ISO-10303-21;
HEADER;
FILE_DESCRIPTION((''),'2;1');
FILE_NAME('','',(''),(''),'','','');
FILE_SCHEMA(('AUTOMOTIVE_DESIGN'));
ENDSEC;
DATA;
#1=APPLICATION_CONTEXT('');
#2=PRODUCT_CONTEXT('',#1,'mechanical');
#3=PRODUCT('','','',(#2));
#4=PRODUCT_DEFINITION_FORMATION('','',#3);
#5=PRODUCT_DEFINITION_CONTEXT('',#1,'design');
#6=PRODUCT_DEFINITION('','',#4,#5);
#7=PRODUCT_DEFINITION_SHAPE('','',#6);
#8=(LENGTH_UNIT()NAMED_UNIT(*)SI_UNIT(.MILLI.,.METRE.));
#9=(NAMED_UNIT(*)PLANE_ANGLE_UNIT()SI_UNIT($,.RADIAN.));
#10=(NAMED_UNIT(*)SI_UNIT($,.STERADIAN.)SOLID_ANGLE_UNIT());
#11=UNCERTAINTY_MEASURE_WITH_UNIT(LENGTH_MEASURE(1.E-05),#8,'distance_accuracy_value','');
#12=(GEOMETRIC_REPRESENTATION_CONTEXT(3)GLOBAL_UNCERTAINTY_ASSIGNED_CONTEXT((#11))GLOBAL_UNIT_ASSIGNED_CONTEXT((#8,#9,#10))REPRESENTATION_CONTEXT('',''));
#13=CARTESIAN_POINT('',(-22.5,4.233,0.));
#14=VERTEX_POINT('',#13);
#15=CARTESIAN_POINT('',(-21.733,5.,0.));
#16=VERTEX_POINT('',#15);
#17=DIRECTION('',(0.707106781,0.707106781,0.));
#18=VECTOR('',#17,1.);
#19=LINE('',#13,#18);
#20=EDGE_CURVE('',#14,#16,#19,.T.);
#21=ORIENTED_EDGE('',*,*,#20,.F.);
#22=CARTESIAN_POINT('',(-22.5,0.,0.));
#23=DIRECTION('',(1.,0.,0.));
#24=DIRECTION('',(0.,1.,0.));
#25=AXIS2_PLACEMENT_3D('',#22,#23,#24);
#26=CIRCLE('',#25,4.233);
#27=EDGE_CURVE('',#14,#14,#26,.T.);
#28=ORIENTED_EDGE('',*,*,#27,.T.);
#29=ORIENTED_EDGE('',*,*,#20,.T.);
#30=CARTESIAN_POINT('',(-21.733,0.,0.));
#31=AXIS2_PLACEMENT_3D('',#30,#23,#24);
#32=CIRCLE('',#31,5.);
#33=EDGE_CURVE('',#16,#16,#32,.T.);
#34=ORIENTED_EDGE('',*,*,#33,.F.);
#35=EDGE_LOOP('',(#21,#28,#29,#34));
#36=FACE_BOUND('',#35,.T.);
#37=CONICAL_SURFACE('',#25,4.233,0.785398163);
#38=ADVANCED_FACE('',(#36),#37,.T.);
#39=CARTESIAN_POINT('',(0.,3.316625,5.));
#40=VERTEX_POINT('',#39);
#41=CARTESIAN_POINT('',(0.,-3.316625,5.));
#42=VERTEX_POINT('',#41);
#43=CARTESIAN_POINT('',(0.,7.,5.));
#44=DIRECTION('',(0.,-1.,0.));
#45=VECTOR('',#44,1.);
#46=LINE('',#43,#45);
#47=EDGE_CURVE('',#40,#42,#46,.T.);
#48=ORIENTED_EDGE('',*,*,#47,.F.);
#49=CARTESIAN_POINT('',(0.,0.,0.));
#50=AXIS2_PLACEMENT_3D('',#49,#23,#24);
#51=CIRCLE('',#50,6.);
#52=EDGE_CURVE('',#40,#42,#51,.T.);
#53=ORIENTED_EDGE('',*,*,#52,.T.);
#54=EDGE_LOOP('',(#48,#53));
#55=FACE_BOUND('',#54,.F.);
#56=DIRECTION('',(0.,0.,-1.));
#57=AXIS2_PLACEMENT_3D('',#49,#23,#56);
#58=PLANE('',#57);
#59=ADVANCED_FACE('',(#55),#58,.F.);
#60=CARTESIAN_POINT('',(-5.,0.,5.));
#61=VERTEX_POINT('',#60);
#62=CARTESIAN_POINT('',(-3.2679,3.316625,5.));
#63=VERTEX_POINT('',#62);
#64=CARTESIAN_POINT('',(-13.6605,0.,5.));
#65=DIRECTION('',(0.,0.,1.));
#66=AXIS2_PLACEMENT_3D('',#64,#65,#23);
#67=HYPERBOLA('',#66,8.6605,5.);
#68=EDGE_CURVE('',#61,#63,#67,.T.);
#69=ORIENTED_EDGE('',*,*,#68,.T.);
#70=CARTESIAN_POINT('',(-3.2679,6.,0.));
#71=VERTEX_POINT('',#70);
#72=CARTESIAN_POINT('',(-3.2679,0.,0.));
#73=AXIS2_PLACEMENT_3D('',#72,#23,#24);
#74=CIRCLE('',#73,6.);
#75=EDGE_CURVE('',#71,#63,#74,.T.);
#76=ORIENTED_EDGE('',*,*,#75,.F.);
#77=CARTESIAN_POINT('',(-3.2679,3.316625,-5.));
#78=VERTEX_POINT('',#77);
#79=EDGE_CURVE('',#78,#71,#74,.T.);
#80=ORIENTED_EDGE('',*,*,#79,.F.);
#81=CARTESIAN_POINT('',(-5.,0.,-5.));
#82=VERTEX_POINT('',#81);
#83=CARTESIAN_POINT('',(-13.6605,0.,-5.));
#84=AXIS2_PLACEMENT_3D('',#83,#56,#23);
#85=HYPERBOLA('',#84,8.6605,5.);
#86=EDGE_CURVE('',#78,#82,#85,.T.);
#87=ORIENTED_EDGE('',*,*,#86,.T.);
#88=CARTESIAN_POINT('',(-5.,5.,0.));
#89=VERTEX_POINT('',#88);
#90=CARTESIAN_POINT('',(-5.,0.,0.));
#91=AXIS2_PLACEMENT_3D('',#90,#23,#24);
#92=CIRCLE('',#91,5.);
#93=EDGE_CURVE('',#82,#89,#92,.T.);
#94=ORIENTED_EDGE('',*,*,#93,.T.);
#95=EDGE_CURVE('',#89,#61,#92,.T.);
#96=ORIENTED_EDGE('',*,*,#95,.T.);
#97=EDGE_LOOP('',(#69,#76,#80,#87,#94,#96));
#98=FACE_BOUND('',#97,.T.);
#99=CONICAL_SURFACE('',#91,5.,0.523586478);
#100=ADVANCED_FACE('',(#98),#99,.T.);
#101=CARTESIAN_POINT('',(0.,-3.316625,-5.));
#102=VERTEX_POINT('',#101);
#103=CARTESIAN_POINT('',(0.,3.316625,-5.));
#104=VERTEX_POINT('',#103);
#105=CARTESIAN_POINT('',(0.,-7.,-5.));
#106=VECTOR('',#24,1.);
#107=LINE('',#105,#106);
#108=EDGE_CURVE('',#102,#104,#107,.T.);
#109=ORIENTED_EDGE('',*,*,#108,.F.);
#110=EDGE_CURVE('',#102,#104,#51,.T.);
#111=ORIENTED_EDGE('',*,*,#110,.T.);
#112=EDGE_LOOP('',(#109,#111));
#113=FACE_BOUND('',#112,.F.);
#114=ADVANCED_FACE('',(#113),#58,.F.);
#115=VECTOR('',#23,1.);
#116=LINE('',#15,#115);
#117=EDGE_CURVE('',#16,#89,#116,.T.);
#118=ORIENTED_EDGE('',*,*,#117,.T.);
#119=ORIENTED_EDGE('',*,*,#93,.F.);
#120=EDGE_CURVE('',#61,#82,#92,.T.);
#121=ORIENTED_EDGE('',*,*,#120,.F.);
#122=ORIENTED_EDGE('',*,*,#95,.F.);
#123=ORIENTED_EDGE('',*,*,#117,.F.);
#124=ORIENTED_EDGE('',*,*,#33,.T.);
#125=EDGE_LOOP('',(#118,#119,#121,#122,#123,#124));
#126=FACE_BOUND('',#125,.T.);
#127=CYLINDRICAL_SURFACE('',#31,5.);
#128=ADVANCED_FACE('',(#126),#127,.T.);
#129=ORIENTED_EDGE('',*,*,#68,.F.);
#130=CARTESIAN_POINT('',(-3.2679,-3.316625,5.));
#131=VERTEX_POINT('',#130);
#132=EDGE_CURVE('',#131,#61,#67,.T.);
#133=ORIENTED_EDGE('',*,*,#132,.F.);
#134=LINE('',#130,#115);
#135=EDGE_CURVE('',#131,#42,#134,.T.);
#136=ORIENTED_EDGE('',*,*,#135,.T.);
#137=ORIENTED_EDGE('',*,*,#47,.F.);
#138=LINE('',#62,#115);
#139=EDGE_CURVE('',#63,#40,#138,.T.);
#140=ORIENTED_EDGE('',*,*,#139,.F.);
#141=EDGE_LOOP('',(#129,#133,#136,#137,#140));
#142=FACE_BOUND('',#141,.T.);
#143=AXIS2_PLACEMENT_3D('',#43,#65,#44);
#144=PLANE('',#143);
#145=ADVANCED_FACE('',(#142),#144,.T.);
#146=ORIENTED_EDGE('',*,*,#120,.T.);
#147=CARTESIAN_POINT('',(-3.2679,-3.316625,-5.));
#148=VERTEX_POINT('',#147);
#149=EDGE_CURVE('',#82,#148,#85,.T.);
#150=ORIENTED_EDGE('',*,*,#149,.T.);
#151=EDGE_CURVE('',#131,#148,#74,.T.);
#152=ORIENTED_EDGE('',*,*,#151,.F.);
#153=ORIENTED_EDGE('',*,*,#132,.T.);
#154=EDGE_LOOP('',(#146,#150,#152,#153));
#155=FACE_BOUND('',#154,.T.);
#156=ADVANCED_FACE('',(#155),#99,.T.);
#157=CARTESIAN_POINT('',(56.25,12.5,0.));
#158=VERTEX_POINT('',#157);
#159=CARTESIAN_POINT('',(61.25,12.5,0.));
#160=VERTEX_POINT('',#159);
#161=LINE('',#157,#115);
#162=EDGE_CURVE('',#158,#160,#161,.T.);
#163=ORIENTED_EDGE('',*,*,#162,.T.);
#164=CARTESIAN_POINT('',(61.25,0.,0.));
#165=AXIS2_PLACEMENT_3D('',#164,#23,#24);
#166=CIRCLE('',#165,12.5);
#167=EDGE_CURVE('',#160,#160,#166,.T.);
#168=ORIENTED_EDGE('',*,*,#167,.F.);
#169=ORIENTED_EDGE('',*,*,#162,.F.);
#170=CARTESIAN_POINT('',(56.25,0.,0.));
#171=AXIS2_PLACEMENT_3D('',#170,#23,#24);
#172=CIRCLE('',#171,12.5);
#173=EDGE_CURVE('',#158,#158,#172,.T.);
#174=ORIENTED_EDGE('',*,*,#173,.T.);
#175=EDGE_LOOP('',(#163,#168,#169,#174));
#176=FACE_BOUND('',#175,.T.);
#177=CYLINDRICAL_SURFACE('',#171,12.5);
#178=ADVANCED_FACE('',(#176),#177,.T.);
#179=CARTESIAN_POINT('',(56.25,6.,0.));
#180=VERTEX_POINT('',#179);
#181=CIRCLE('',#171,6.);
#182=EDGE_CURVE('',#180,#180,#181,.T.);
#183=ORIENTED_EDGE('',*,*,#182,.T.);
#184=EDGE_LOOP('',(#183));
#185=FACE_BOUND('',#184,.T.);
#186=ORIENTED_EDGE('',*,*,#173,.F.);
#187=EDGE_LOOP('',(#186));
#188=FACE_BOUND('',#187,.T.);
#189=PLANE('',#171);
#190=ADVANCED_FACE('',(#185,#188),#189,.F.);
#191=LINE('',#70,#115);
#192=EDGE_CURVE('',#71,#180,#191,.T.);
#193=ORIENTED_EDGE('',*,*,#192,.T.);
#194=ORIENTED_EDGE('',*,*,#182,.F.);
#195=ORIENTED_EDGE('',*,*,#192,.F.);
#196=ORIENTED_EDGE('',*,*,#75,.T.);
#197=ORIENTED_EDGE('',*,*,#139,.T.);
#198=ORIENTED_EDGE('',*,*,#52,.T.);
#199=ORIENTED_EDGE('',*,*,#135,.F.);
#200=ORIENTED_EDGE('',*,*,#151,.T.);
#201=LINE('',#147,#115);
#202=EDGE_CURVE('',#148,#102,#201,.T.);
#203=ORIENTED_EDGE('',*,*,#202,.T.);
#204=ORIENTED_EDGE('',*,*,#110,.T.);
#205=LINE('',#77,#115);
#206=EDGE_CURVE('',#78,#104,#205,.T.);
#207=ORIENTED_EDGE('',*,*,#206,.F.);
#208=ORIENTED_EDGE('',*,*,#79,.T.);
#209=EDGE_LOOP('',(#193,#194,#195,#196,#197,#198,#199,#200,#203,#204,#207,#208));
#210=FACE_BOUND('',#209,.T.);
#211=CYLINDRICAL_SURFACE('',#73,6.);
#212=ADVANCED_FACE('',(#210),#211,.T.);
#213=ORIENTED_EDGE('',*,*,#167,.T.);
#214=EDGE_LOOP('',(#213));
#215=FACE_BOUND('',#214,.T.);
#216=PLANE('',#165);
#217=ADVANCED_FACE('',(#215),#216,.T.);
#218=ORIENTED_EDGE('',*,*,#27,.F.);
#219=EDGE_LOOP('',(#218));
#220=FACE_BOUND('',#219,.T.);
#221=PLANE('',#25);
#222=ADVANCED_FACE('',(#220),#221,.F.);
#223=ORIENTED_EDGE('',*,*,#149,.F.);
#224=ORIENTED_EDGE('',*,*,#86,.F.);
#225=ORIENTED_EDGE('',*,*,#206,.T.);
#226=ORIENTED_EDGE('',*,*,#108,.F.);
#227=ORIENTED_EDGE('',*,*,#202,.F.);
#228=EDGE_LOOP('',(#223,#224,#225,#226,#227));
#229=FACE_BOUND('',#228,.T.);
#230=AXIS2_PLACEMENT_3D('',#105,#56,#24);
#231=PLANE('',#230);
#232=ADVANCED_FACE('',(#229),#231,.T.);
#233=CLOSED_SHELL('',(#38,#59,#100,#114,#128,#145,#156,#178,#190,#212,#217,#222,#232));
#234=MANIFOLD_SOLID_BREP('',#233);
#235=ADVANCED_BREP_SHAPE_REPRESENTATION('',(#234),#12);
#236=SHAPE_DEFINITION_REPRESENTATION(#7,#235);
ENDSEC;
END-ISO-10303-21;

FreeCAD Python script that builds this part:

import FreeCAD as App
import Part
import Sketcher
from FreeCAD import Vector
Q = App.Units.Quantity

doc = App.newDocument("Part")
body = doc.addObject("PartDesign::Body", "Body")

sketch1 = doc.addObject("Sketcher::SketchObject", "Sketch")
body.addObject(sketch1)
sketch1.AttachmentSupport = (doc.XY_Plane, [""])
sketch1.MapMode = "FlatFace"
sketch1.addGeometry([
    Part.LineSegment(Vector(-22.5, 0, 0), Vector(61.2, 0, 0)),
    Part.LineSegment(Vector(61.2, 0, 0), Vector(61.2, 12.5, 0)),
    Part.LineSegment(Vector(61.2, 12.5, 0), Vector(56.2, 12.5, 0)),
    Part.LineSegment(Vector(56.2, 12.5, 0), Vector(56.2, 6, 0)),
    Part.LineSegment(Vector(56.2, 6, 0), Vector(-3.3, 6, 0)),
    Part.LineSegment(Vector(-3.3, 6, 0), Vector(-5, 5, 0)),
    Part.LineSegment(Vector(-5, 5, 0), Vector(-21.7, 5, 0)),
    Part.LineSegment(Vector(-21.7, 5, 0), Vector(-22.5, 4.2, 0)),
    Part.LineSegment(Vector(-22.5, 4.2, 0), Vector(-22.5, 0, 0)),
], False)
sketch1.addConstraint([
    Sketcher.Constraint("Coincident", 0, 2, 1, 1),
    Sketcher.Constraint("Coincident", 1, 2, 2, 1),
    Sketcher.Constraint("Coincident", 2, 2, 3, 1),
    Sketcher.Constraint("Coincident", 3, 2, 4, 1),
    Sketcher.Constraint("Coincident", 4, 2, 5, 1),
    Sketcher.Constraint("Coincident", 5, 2, 6, 1),
    Sketcher.Constraint("Coincident", 6, 2, 7, 1),
    Sketcher.Constraint("Coincident", 7, 2, 8, 1),
    Sketcher.Constraint("Coincident", 8, 2, 0, 1),
    Sketcher.Constraint("Horizontal", 0),
    Sketcher.Constraint("Vertical", 1),
    Sketcher.Constraint("Horizontal", 2),
    Sketcher.Constraint("Vertical", 3),
    Sketcher.Constraint("Horizontal", 4),
    Sketcher.Constraint("Horizontal", 6),
    Sketcher.Constraint("Vertical", 8),
    Sketcher.Constraint("PointOnObject", 0, 2, -1),
    Sketcher.Constraint("DistanceX", 2, 2, 2, 1, 5.0),
    Sketcher.Constraint("Angle", 5, Q("-150.0007 deg")),
    Sketcher.Constraint("Angle", 7, Q("-135 deg")),
    Sketcher.Constraint("Distance", 5, 2.0),
    Sketcher.Constraint("DistanceY", 1, 1, 1, 2, 12.5),
    Sketcher.Constraint("DistanceY", 3, 2, 3, 1, 6.5),
    Sketcher.Constraint("DistanceX", 5, 2, -1, 1, 5.0),
    Sketcher.Constraint("DistanceX", 0, 1, 0, 2, 83.75),
    Sketcher.Constraint("DistanceX", 7, 2, -1, 1, 22.5),
    Sketcher.Constraint("DistanceX", 6, 2, 6, 1, 16.733),
])
revolution = doc.addObject("PartDesign::Revolution", "Revolution")
body.addObject(revolution)
revolution.Profile = sketch1
revolution.ReferenceAxis = (sketch1, ["H_Axis"])
revolution.Angle = 360

sketch2 = doc.addObject("Sketcher::SketchObject", "Sketch001")
body.addObject(sketch2)
sketch2.AttachmentSupport = (doc.YZ_Plane, [""])
sketch2.MapMode = "FlatFace"
sketch2.addGeometry([
    Part.Circle(Vector(0, 0, 0), Vector(0, 0, 1), 12),
    Part.LineSegment(Vector(-7, 5, 0), Vector(7, 5, 0)),
    Part.LineSegment(Vector(7, 5, 0), Vector(7, -5, 0)),
    Part.LineSegment(Vector(7, -5, 0), Vector(-7, -5, 0)),
    Part.LineSegment(Vector(-7, -5, 0), Vector(-7, 5, 0)),
], False)
sketch2.addConstraint([
    Sketcher.Constraint("Coincident", 1, 2, 2, 1),
    Sketcher.Constraint("Coincident", 2, 2, 3, 1),
    Sketcher.Constraint("Coincident", 3, 2, 4, 1),
    Sketcher.Constraint("Coincident", 4, 2, 1, 1),
    Sketcher.Constraint("Horizontal", 1),
    Sketcher.Constraint("Vertical", 2),
    Sketcher.Constraint("Horizontal", 3),
    Sketcher.Constraint("Vertical", 4),
    Sketcher.Constraint("Coincident", 0, 3, -1, 1),
    Sketcher.Constraint("Symmetric", 1, 2, 3, 2, -1, 1),
    Sketcher.Constraint("Diameter", 0, 24.0),
    Sketcher.Constraint("DistanceX", 1, 1, 1, 2, 14.0),
    Sketcher.Constraint("DistanceY", 2, 2, 2, 1, 10.0),
])
pocket1 = doc.addObject("PartDesign::Pocket", "Pocket")
body.addObject(pocket1)
pocket1.Profile = sketch2
pocket1.Length = 5

doc.recompute()
